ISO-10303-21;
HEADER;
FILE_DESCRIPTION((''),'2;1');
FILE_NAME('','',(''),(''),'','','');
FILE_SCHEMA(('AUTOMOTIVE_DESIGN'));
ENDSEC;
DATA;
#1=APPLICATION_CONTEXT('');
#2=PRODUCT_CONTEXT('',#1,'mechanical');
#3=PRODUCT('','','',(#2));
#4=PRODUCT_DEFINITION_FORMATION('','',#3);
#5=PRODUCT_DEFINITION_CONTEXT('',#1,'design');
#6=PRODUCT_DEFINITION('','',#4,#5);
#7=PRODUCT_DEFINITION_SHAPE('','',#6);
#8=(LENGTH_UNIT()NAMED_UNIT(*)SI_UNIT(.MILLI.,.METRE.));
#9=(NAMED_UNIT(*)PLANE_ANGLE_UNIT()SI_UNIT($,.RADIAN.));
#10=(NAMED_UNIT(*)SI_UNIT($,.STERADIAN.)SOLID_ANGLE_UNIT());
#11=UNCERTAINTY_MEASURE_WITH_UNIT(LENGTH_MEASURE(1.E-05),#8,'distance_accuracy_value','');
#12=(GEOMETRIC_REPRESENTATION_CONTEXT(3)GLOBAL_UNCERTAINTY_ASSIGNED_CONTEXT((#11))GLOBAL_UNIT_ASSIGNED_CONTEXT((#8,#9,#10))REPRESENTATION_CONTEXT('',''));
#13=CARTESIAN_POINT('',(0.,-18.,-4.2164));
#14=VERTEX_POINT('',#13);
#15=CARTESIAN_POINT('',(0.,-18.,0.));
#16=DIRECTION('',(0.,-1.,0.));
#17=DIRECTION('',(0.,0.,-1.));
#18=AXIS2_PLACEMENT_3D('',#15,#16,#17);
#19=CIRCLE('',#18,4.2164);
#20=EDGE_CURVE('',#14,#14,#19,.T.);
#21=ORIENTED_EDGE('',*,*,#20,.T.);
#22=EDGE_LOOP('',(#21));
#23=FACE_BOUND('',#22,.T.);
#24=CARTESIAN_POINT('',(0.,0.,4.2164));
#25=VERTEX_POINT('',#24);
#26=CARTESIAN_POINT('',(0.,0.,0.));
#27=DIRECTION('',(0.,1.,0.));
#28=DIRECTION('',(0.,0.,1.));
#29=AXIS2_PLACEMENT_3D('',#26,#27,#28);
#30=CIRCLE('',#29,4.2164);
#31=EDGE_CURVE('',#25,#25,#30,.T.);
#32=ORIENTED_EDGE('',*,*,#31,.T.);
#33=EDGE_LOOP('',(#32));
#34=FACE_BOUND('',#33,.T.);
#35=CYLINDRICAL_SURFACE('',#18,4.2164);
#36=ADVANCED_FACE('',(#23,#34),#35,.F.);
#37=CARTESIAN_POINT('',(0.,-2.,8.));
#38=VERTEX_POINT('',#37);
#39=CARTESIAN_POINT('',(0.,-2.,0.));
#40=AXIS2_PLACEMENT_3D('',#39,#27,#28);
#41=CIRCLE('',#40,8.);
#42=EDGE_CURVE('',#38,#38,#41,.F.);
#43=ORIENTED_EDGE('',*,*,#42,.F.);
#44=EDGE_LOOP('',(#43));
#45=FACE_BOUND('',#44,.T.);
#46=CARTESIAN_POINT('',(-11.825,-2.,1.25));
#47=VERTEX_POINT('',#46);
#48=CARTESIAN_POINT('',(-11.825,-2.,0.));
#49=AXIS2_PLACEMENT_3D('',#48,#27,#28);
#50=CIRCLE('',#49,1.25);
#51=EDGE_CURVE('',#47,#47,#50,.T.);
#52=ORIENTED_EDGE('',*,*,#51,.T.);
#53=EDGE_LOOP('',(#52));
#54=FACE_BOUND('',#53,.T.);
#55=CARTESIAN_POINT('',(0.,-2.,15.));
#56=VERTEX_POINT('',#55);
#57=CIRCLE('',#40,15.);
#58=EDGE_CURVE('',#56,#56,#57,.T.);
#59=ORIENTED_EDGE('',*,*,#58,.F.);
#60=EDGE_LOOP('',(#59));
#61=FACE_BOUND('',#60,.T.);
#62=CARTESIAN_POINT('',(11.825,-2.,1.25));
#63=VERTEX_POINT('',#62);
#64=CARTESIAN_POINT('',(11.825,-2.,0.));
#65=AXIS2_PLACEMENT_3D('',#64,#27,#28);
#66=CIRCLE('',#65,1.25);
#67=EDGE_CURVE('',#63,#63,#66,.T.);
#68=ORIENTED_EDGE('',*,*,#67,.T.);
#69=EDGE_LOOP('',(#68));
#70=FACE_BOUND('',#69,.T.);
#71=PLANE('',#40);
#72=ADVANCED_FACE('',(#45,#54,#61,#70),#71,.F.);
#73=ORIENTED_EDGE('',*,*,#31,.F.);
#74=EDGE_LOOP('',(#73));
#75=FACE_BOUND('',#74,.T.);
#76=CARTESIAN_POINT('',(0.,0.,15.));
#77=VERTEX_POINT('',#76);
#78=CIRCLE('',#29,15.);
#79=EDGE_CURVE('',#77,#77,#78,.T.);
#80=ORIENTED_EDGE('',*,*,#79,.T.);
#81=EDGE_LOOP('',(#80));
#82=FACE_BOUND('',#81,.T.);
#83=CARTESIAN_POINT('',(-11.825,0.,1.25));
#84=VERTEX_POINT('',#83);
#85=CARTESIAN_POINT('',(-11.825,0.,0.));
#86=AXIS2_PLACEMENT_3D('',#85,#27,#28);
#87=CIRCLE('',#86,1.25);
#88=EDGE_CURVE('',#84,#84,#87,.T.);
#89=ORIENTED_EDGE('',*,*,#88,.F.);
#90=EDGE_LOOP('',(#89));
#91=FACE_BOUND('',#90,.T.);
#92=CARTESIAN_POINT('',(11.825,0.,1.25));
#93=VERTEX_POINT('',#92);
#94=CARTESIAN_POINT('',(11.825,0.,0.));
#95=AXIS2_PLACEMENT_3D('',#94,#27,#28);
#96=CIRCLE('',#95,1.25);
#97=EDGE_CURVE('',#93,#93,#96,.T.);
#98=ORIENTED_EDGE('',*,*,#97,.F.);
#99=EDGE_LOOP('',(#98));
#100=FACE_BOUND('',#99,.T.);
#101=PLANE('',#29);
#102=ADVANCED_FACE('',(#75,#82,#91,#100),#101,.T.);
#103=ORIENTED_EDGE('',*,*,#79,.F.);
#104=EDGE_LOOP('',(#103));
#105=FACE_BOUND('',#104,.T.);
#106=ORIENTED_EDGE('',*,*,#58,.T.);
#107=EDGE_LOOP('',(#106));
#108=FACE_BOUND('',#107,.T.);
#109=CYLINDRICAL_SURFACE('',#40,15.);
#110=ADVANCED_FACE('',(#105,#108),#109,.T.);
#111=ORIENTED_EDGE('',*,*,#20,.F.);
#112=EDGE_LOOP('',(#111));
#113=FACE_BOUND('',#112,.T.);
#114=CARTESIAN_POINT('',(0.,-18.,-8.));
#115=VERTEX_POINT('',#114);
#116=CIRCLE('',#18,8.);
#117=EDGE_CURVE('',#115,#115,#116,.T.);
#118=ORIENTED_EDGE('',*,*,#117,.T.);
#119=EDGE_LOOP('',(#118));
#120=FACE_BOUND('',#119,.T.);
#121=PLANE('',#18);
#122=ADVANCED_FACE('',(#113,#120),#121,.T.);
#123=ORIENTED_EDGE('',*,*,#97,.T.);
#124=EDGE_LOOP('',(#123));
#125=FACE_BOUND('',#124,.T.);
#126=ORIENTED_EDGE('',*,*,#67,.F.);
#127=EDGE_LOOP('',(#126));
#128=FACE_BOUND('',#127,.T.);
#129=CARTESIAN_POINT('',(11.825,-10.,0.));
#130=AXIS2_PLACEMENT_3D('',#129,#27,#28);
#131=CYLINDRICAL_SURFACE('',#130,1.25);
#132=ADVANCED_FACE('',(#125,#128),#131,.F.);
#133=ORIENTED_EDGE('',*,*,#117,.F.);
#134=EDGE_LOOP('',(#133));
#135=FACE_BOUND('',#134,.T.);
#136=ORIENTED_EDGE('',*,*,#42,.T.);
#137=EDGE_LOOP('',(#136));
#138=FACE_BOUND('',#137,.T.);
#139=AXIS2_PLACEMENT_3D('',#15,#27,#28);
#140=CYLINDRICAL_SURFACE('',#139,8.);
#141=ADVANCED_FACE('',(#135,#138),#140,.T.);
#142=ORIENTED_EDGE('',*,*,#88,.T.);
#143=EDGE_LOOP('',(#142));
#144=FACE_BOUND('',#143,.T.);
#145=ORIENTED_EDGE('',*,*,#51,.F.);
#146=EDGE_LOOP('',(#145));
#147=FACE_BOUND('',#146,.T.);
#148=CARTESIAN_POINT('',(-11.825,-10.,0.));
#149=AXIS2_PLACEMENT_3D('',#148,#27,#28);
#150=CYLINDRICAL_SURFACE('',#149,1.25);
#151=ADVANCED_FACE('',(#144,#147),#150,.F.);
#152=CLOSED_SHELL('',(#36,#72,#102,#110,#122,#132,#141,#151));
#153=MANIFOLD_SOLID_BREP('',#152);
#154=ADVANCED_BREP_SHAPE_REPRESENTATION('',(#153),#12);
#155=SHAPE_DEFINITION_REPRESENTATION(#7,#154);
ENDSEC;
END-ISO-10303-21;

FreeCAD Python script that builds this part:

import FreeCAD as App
import Part
import Sketcher
from FreeCAD import Vector

doc = App.newDocument("Part")
params = doc.addObject("Spreadsheet::Sheet", "Params")
for row, (alias, value) in enumerate([
    ("sketch1_diameter", "30 mm"),
    ("pad1_length", "2 mm"),
    ("sketch2_diameter", "16 mm"),
    ("pad2_length", "16 mm"),
    ("hole_diameter", "8.4328 mm"),
    ("hole_depth", "24.4 mm"),
    ("sketch4_diameter", "2.5 mm"),
    ("pocket1_length", "10 mm"),
], start=1):
    params.set(f"A{row}", alias)
    params.set(f"B{row}", "=" + value)
    params.setAlias(f"B{row}", alias)

body = doc.addObject("PartDesign::Body", "Body")

# Sketch on XZ plane
sketch1 = doc.addObject("Sketcher::SketchObject", "Sketch")
body.addObject(sketch1)
sketch1.AttachmentSupport = (doc.XZ_Plane, [""])
sketch1.MapMode = "FlatFace"
sketch1.addGeometry(Part.Circle(Vector(0, 0, 0), Vector(0, 0, 1), 15), False)
sketch1.addConstraint([
    Sketcher.Constraint("Coincident", 0, 3, -1, 1),
    Sketcher.Constraint("Diameter", 0, 30.0),
])
sketch1.setExpression("Constraints[1]", "Params.sketch1_diameter")
pad1 = doc.addObject("PartDesign::Pad", "Pad")
body.addObject(pad1)
pad1.Profile = sketch1
pad1.setExpression("Length", "Params.pad1_length")

# Sketch on XZ plane
sketch2 = doc.addObject("Sketcher::SketchObject", "Sketch001")
body.addObject(sketch2)
sketch2.AttachmentSupport = (doc.XZ_Plane, [""])
sketch2.MapMode = "FlatFace"
sketch2.AttachmentOffset = App.Placement(Vector(0, 0, 2), App.Rotation())
sketch2.addGeometry(Part.Circle(Vector(0, 0, 0), Vector(0, 0, 1), 8), False)
sketch2.addConstraint([
    Sketcher.Constraint("Coincident", 0, 3, -1, 1),
    Sketcher.Constraint("Diameter", 0, 16.0),
])
sketch2.setExpression("Constraints[1]", "Params.sketch2_diameter")
pad2 = doc.addObject("PartDesign::Pad", "Pad001")
body.addObject(pad2)
pad2.Profile = sketch2
pad2.setExpression("Length", "Params.pad2_length")

# Sketch on XZ plane
sketch3 = doc.addObject("Sketcher::SketchObject", "Sketch002")
body.addObject(sketch3)
sketch3.AttachmentSupport = (doc.XZ_Plane, [""])
sketch3.MapMode = "FlatFace"
sketch3.AttachmentOffset = App.Placement(Vector(0, 0, 18), App.Rotation())
sketch3.addGeometry(Part.Circle(Vector(0, 0, 0), Vector(0, 0, 1), 4.2), False)
sketch3.addConstraint([
    Sketcher.Constraint("Coincident", 0, 3, -1, 1),
    Sketcher.Constraint("Diameter", 0, 8.4328),
])
doc.recompute()
hole = doc.addObject("PartDesign::Hole", "Hole")
body.addObject(hole)
hole.Profile = sketch3
hole.ThreadType = "None"
hole.setExpression("Diameter", "Params.hole_diameter")
hole.DepthType = "Dimension"
hole.setExpression("Depth", "Params.hole_depth")
hole.DrillPoint = "Angled"
hole.DrillPointAngle = 118

# Sketch on XZ plane
sketch4 = doc.addObject("Sketcher::SketchObject", "Sketch003")
body.addObject(sketch4)
sketch4.AttachmentSupport = (doc.XZ_Plane, [""])
sketch4.MapMode = "FlatFace"
sketch4.addGeometry([
    Part.Circle(Vector(11.8, 0, 0), Vector(0, 0, 1), 1.2),
    Part.Circle(Vector(-11.8, 0, 0), Vector(0, 0, 1), 1.2),
], False)
sketch4.addConstraint([
    Sketcher.Constraint("Equal", 0, 1),
    Sketcher.Constraint("Symmetric", 0, 3, 1, 3, -1, 1),
    Sketcher.Constraint("PointOnObject", 0, 3, -1),
    Sketcher.Constraint("Diameter", 0, 2.5),
    Sketcher.Constraint("DistanceX", 1, 3, 0, 3, 23.65),
])
sketch4.setExpression("Constraints[3]", "Params.sketch4_diameter")
pocket1 = doc.addObject("PartDesign::Pocket", "Pocket")
body.addObject(pocket1)
pocket1.Profile = sketch4
pocket1.setExpression("Length", "Params.pocket1_length")
pocket1.Reversed = True

doc.recompute()
